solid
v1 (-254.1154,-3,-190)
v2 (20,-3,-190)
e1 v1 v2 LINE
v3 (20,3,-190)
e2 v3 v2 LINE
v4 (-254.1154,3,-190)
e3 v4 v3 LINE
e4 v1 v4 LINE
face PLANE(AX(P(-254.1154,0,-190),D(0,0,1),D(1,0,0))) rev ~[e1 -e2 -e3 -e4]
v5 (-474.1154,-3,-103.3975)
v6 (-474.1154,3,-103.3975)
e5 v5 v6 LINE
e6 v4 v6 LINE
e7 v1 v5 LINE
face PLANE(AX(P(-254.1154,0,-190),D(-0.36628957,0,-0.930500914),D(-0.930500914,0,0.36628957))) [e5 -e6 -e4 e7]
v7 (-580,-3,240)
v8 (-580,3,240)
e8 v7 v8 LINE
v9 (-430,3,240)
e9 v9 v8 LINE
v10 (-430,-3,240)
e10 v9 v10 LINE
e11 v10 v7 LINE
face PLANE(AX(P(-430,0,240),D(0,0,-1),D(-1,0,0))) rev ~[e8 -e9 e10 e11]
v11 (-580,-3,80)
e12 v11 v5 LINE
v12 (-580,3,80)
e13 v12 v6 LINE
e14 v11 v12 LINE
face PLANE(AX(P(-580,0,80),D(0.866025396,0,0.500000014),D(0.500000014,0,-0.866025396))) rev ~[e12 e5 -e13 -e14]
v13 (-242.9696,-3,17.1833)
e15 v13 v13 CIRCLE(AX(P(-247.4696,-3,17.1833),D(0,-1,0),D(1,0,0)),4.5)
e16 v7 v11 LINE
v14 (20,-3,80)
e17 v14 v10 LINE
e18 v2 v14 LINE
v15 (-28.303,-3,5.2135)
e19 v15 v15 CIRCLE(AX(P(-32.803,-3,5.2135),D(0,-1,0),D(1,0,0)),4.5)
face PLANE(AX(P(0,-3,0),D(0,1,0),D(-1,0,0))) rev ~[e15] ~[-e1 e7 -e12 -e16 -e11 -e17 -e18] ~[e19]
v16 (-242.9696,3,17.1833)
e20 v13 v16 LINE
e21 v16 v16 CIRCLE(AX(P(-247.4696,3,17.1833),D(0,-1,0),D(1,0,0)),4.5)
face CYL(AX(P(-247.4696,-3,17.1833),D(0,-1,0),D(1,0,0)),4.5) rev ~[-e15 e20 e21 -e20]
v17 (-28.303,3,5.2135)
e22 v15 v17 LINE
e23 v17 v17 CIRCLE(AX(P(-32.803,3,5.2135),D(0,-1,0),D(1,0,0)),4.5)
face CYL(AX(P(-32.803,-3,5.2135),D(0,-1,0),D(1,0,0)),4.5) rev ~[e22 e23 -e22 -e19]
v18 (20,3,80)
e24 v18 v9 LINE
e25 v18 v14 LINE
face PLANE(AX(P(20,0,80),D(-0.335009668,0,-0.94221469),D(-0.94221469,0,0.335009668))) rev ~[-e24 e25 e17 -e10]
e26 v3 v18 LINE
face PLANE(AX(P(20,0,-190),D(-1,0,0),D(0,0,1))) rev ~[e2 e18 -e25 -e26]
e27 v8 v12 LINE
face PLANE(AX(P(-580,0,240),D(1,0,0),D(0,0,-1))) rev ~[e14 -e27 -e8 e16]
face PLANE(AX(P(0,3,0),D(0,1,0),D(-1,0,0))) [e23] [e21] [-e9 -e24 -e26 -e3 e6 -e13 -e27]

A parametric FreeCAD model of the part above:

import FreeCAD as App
import Part
import Sketcher
from FreeCAD import Vector
Q = App.Units.Quantity

doc = App.newDocument("Part")
body = doc.addObject("PartDesign::Body", "Body")

sketch1 = body.newObject("Sketcher::SketchObject", "Sketch")
sketch1.AttachmentSupport = (doc.getObject("XZ_Plane"), [""])
sketch1.MapMode = "FlatFace"
sketch1.addGeometry([
    Part.LineSegment(Vector(20, -190, 0), Vector(-254.1154, -190, 0)),
    Part.LineSegment(Vector(-254.1154, -190, 0), Vector(-474.1154, -103.3975, 0)),
    Part.LineSegment(Vector(-474.1154, -103.3975, 0), Vector(-580, 80, 0)),
    Part.LineSegment(Vector(-580, 80, 0), Vector(-580, 240, 0)),
    Part.LineSegment(Vector(-580, 240, 0), Vector(-430, 240, 0)),
    Part.LineSegment(Vector(-430, 240, 0), Vector(20, 80, 0)),
    Part.LineSegment(Vector(20, 80, 0), Vector(20, -190, 0)),
    Part.Circle(Vector(-32.803, 5.2135, 0), Vector(0, 0, 1), 6),
    Part.Circle(Vector(-247.4696, 17.1833, 0), Vector(0, 0, 1), 6),
], False)
sketch1.addConstraint([
    Sketcher.Constraint("Coincident", 0, 2, 1, 1),
    Sketcher.Constraint("Coincident", 1, 2, 2, 1),
    Sketcher.Constraint("Coincident", 2, 2, 3, 1),
    Sketcher.Constraint("Coincident", 3, 2, 4, 1),
    Sketcher.Constraint("Coincident", 4, 2, 5, 1),
    Sketcher.Constraint("Coincident", 5, 2, 6, 1),
    Sketcher.Constraint("Coincident", 6, 2, 0, 1),
    Sketcher.Constraint("Horizontal", 0),
    Sketcher.Constraint("Vertical", 3),
    Sketcher.Constraint("Horizontal", 4),
    Sketcher.Constraint("Vertical", 6),
    Sketcher.Constraint("Equal", 7, 8),
    Sketcher.Constraint("Horizontal", 2, 2, 5, 2),
    Sketcher.Constraint("Diameter", 7, 12.0),
    Sketcher.Constraint("DistanceX", 4, 1, 4, 2, 150.0),
    Sketcher.Constraint("DistanceY", 3, 1, 3, 2, 160.0),
    Sketcher.Constraint("DistanceY", 6, 2, 6, 1, 270.0),
    Sketcher.Constraint("Angle", 2, Q("120 deg")),
    Sketcher.Constraint("DistanceY", 0, 2, -1, 1, 190.0),
    Sketcher.Constraint("DistanceX", 2, 2, -1, 1, 580.0),
    Sketcher.Constraint("DistanceX", -1, 1, 5, 2, 20.0),
    Sketcher.Constraint("DistanceX", 1, 2, 0, 2, 220.0),
    Sketcher.Constraint("DistanceX", 0, 2, 0, 1, 274.1154),
    Sketcher.Constraint("DistanceX", 7, 3, -1, 1, 32.803),
    Sketcher.Constraint("DistanceY", 1, 2, 7, 3, 108.611),
    Sketcher.Constraint("DistanceX", 8, 3, -1, 1, 247.4696),
    Sketcher.Constraint("DistanceY", -1, 1, 8, 3, 17.1833),
])
pad1 = body.newObject("PartDesign::Pad", "Pad")
pad1.Profile = sketch1
pad1.Length = 6
pad1.Midplane = True

sketch2 = body.newObject("Sketcher::SketchObject", "Sketch001")
sketch2.AttachmentSupport = (doc.getObject("XZ_Plane"), [""])
sketch2.MapMode = "FlatFace"
sketch2.AttachmentOffset = App.Placement(Vector(0, 0, 3), App.Rotation())
sketch2.addGeometry([
    Part.Circle(Vector(-247.4696, 17.1833, 0), Vector(0, 0, 1), 6),
    Part.Circle(Vector(-247.4696, 17.1833, 0), Vector(0, 0, 1), 4.5),
    Part.Circle(Vector(-32.803, 5.2135, 0), Vector(0, 0, 1), 6),
    Part.Circle(Vector(-32.803, 5.2135, 0), Vector(0, 0, 1), 4.5),
], False)
sketch2.addConstraint([
    Sketcher.Constraint("Coincident", 1, 3, 0, 3),
    Sketcher.Constraint("Coincident", 3, 3, 2, 3),
    Sketcher.Constraint("Equal", 0, 2),
    Sketcher.Constraint("Equal", 1, 3),
    Sketcher.Constraint("Diameter", 1, 9.0),
    Sketcher.Constraint("Diameter", 0, 12.0),
    Sketcher.Constraint("DistanceX", 2, 3, -1, 1, 32.803),
    Sketcher.Constraint("DistanceX", 0, 3, -1, 1, 247.4696),
    Sketcher.Constraint("DistanceY", -1, 1, 0, 3, 17.1833),
    Sketcher.Constraint("DistanceY", -1, 1, 2, 3, 5.2135),
])
pad2 = body.newObject("PartDesign::Pad", "Pad001")
pad2.Profile = sketch2
pad2.Length = 6
pad2.Reversed = True

doc.recompute()
